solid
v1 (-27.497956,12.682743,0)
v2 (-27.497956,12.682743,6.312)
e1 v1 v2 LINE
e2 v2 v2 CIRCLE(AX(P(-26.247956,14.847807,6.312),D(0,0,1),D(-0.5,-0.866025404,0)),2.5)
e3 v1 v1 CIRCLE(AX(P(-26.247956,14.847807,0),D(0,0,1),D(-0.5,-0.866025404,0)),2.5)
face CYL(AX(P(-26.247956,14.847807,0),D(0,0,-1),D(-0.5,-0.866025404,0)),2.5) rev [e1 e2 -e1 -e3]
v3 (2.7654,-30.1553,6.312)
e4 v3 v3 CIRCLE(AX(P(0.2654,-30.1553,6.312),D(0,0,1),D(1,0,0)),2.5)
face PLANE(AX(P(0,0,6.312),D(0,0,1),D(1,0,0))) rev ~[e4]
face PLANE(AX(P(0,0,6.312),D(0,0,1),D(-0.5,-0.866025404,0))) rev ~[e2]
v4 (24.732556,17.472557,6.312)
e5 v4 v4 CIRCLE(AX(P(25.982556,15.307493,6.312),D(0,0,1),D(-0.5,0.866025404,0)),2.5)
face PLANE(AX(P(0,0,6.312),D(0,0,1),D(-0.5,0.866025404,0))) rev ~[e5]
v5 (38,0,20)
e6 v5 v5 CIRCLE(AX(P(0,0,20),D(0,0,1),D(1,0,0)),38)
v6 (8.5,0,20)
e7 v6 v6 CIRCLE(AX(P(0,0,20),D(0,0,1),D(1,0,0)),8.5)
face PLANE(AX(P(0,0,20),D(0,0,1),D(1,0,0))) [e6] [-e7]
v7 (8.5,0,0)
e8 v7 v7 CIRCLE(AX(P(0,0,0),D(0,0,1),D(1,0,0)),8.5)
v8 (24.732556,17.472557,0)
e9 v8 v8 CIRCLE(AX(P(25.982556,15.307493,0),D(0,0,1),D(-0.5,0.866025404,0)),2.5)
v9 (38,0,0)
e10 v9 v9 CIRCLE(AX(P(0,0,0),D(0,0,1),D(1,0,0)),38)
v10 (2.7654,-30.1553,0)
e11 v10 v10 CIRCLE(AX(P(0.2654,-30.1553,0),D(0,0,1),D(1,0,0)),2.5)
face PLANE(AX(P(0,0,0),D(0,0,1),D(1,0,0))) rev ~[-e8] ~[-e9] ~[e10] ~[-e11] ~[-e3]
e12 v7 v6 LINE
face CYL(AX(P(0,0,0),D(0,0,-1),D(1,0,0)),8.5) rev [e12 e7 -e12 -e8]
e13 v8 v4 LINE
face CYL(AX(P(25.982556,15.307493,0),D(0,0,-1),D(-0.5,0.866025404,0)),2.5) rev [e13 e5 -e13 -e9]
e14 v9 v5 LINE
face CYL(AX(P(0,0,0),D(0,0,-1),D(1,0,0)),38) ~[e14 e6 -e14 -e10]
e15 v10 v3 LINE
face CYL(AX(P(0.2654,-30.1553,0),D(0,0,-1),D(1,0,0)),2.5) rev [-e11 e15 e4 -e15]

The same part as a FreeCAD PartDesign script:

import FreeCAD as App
import Part
import Sketcher
from FreeCAD import Vector
Q = App.Units.Quantity

doc = App.newDocument("Part")
body = doc.addObject("PartDesign::Body", "Body")

sketch1 = body.newObject("Sketcher::SketchObject", "Sketch")
sketch1.AttachmentSupport = (doc.getObject("XY_Plane"), [""])
sketch1.MapMode = "FlatFace"
sketch1.addGeometry([
    Part.Circle(Vector(0, 0, 0), Vector(0, 0, 1), 22.5),
    Part.Circle(Vector(0, 0, 0), Vector(0, 0, 1), 8.5),
], False)
sketch1.addConstraint([
    Sketcher.Constraint("Coincident", 0, 3, -1, 1),
    Sketcher.Constraint("Coincident", 1, 3, -1, 1),
    Sketcher.Constraint("Diameter", 0, Q("45 mm")),
    Sketcher.Constraint("Diameter", 1, Q("17 mm")),
])
pad1 = body.newObject("PartDesign::Pad", "Pad")
pad1.Profile = sketch1
pad1.Length = 20

sketch2 = body.newObject("Sketcher::SketchObject", "Sketch001")
sketch2.AttachmentSupport = (doc.getObject("XY_Plane"), [""])
sketch2.MapMode = "FlatFace"
sketch2.addGeometry([
    Part.Circle(Vector(0, 0, 0), Vector(0, 0, 1), 38),
    Part.Circle(Vector(0, 0, 0), Vector(0, 0, 1), 8.5),
], False)
sketch2.addConstraint([
    Sketcher.Constraint("Coincident", 0, 3, -1, 1),
    Sketcher.Constraint("Coincident", 1, 3, -1, 1),
    Sketcher.Constraint("Diameter", 0, Q("76 mm")),
    Sketcher.Constraint("Diameter", 1, Q("17 mm")),
])
pad2 = body.newObject("PartDesign::Pad", "Pad001")
pad2.Profile = sketch2
pad2.Length = 20

sketch3 = body.newObject("Sketcher::SketchObject", "Sketch002")
sketch3.AttachmentSupport = (doc.getObject("XY_Plane"), [""])
sketch3.MapMode = "FlatFace"
sketch3.addGeometry(Part.Circle(Vector(0.2654, -30.1553, 0), Vector(0, 0, 1), 2.5), False)
sketch3.addConstraint([
    Sketcher.Constraint("Diameter", 0, Q("5 mm")),
    Sketcher.Constraint("DistanceX", -1, 1, 0, 3, Q("0.2654 mm")),
    Sketcher.Constraint("DistanceY", 0, 3, -1, 1, Q("30.1553 mm")),
])
pocket1 = body.newObject("PartDesign::Pocket", "Pocket")
pocket1.Profile = sketch3
pocket1.Length = 6.312
pocket1.Reversed = True
doc.recompute()

polarpattern = body.newObject("PartDesign::PolarPattern", "PolarPattern")
polarpattern.Originals = [pocket1]
polarpattern.Axis = (doc.getObject("Z_Axis"), [""])
polarpattern.Angle = 360
polarpattern.Occurrences = 3
body.Tip = polarpattern

doc.recompute()
